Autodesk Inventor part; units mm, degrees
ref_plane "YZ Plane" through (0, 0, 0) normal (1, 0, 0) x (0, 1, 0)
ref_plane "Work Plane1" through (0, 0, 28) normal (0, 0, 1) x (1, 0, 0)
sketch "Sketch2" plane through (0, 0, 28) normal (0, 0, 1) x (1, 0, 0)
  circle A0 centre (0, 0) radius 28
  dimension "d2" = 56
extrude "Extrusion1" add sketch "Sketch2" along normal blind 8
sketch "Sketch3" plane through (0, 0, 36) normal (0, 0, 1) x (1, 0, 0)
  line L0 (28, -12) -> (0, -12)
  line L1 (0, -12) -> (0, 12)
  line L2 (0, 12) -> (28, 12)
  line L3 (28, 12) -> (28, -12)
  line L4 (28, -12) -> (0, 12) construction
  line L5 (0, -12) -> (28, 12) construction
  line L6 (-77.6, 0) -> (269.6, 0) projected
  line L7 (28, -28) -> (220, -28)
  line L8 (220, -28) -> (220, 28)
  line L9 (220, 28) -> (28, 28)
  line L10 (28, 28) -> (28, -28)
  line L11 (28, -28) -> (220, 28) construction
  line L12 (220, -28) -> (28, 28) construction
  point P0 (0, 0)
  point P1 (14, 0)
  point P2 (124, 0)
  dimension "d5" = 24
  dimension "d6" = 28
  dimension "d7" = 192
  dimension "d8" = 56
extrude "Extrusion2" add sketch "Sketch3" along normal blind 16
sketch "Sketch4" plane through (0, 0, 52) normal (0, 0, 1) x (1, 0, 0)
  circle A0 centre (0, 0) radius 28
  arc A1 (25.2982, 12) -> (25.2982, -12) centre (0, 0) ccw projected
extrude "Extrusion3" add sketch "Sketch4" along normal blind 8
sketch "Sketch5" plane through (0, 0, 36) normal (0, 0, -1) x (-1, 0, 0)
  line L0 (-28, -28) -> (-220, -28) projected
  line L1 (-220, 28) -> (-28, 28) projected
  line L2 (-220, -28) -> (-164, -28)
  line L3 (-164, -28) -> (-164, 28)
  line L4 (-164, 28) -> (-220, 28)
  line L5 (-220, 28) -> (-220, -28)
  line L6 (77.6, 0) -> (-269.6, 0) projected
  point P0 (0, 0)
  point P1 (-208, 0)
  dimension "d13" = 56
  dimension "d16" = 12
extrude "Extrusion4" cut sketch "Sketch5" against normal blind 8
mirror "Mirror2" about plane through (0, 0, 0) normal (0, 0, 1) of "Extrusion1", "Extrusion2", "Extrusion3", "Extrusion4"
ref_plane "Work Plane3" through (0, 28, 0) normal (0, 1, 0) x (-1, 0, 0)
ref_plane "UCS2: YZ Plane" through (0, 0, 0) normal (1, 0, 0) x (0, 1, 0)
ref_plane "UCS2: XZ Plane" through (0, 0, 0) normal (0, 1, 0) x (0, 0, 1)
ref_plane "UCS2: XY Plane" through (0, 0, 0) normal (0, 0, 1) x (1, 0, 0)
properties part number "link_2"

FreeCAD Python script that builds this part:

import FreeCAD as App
import Part
import Sketcher
from FreeCAD import Vector


def add_polygon(sketch, points):
    """Adds a closed chain of lines whose ends are joined by coincident constraints."""
    first, n = sketch.GeometryCount, len(points)
    for a, b in zip(points, points[1:] + points[:1]):
        sketch.addGeometry(Part.LineSegment(App.Vector(*a, 0), App.Vector(*b, 0)), False)
    for i in range(n):
        sketch.addConstraint(Sketcher.Constraint("Coincident", first + i, 2, first + (i + 1) % n, 1))

doc = App.newDocument("Part")
body = doc.addObject("PartDesign::Body", "Body")
body.AllowCompound = True

sketch1 = body.newObject("Sketcher::SketchObject", "Sketch")
sketch1.AttachmentSupport = (doc.getObject("XY_Plane"), [""])
sketch1.MapMode = "FlatFace"
sketch1.AttachmentOffset = App.Placement(Vector(0, 0, 28), App.Rotation())
sketch1.addGeometry(Part.Circle(Vector(0, 0, 0), Vector(0, 0, 1), 28), False)
sketch1.addConstraint(Sketcher.Constraint("Coincident", 0, 3, -1, 1))
sketch1.addConstraint(Sketcher.Constraint("Diameter", 0, 56.0))
pad1 = body.newObject("PartDesign::Pad", "Pad")
pad1.Profile = sketch1
pad1.Length = 8

sketch2 = body.newObject("Sketcher::SketchObject", "Sketch001")
sketch2.AttachmentSupport = (doc.getObject("XY_Plane"), [""])
sketch2.MapMode = "FlatFace"
sketch2.AttachmentOffset = App.Placement(Vector(0, 0, 36), App.Rotation())
add_polygon(sketch2, [(0, -12), (28, -12), (28, -28), (220, -28), (220, 28), (28, 28), (28, 12), (0, 12)])
sketch2.addConstraint(Sketcher.Constraint("Horizontal", 0))
sketch2.addConstraint(Sketcher.Constraint("Vertical", 1))
sketch2.addConstraint(Sketcher.Constraint("Horizontal", 2))
sketch2.addConstraint(Sketcher.Constraint("Vertical", 3))
sketch2.addConstraint(Sketcher.Constraint("Horizontal", 4))
sketch2.addConstraint(Sketcher.Constraint("Vertical", 5))
sketch2.addConstraint(Sketcher.Constraint("Horizontal", 6))
sketch2.addConstraint(Sketcher.Constraint("Vertical", 7))
sketch2.addConstraint(Sketcher.Constraint("Symmetric", 6, 2, 7, 2, -1, 1))
sketch2.addConstraint(Sketcher.Constraint("Symmetric", 1, 2, 4, 2, -1))
sketch2.addConstraint(Sketcher.Constraint("DistanceX", 0, 1, 0, 2, 28.0))
sketch2.addConstraint(Sketcher.Constraint("DistanceX", 2, 1, 2, 2, 192.0))
sketch2.addConstraint(Sketcher.Constraint("DistanceY", 3, 1, 3, 2, 56.0))
sketch2.addConstraint(Sketcher.Constraint("DistanceY", 7, 2, 7, 1, 24.0))
pad2 = body.newObject("PartDesign::Pad", "Pad001")
pad2.Profile = sketch2
pad2.Length = 16

sketch3 = body.newObject("Sketcher::SketchObject", "Sketch002")
sketch3.AttachmentSupport = (doc.getObject("XY_Plane"), [""])
sketch3.MapMode = "FlatFace"
sketch3.AttachmentOffset = App.Placement(Vector(0, 0, 52), App.Rotation())
sketch3.addGeometry(Part.Circle(Vector(0, 0, 0), Vector(0, 0, 1), 28), False)
sketch3.addConstraint(Sketcher.Constraint("Coincident", 0, 3, -1, 1))
sketch3.addConstraint(Sketcher.Constraint("Diameter", 0, 56.0))
pad3 = body.newObject("PartDesign::Pad", "Pad002")
pad3.Profile = sketch3
pad3.Length = 8

sketch4 = body.newObject("Sketcher::SketchObject", "Sketch003")
sketch4.AttachmentSupport = (doc.getObject("XY_Plane"), [""])
sketch4.MapMode = "FlatFace"
sketch4.AttachmentOffset = App.Placement(Vector(0, 0, 36), App.Rotation())
add_polygon(sketch4, [(220, -28), (164, -28), (164, 28), (220, 28)])
sketch4.addConstraint(Sketcher.Constraint("Horizontal", 0))
sketch4.addConstraint(Sketcher.Constraint("Vertical", 1))
sketch4.addConstraint(Sketcher.Constraint("Horizontal", 2))
sketch4.addConstraint(Sketcher.Constraint("Vertical", 3))
sketch4.addConstraint(Sketcher.Constraint("Equal", 2, 1))
sketch4.addConstraint(Sketcher.Constraint("DistanceX", 0, 2, 0, 1, 56.0))
sketch4.addConstraint(Sketcher.Constraint("DistanceX", -1, 1, 0, 2, 164.0))
sketch4.addConstraint(Sketcher.Constraint("DistanceY", 0, 2, -1, 1, 28.0))
pocket1 = body.newObject("PartDesign::Pocket", "Pocket")
pocket1.Profile = sketch4
pocket1.Length = 8
pocket1.Reversed = True
doc.recompute()

mirrored = body.newObject("PartDesign::Mirrored", "Mirrored")
mirrored.Originals = [pad1, pad2, pad3, pocket1]
mirrored.MirrorPlane = (doc.getObject("XY_Plane"), [""])
body.Tip = mirrored

doc.recompute()
